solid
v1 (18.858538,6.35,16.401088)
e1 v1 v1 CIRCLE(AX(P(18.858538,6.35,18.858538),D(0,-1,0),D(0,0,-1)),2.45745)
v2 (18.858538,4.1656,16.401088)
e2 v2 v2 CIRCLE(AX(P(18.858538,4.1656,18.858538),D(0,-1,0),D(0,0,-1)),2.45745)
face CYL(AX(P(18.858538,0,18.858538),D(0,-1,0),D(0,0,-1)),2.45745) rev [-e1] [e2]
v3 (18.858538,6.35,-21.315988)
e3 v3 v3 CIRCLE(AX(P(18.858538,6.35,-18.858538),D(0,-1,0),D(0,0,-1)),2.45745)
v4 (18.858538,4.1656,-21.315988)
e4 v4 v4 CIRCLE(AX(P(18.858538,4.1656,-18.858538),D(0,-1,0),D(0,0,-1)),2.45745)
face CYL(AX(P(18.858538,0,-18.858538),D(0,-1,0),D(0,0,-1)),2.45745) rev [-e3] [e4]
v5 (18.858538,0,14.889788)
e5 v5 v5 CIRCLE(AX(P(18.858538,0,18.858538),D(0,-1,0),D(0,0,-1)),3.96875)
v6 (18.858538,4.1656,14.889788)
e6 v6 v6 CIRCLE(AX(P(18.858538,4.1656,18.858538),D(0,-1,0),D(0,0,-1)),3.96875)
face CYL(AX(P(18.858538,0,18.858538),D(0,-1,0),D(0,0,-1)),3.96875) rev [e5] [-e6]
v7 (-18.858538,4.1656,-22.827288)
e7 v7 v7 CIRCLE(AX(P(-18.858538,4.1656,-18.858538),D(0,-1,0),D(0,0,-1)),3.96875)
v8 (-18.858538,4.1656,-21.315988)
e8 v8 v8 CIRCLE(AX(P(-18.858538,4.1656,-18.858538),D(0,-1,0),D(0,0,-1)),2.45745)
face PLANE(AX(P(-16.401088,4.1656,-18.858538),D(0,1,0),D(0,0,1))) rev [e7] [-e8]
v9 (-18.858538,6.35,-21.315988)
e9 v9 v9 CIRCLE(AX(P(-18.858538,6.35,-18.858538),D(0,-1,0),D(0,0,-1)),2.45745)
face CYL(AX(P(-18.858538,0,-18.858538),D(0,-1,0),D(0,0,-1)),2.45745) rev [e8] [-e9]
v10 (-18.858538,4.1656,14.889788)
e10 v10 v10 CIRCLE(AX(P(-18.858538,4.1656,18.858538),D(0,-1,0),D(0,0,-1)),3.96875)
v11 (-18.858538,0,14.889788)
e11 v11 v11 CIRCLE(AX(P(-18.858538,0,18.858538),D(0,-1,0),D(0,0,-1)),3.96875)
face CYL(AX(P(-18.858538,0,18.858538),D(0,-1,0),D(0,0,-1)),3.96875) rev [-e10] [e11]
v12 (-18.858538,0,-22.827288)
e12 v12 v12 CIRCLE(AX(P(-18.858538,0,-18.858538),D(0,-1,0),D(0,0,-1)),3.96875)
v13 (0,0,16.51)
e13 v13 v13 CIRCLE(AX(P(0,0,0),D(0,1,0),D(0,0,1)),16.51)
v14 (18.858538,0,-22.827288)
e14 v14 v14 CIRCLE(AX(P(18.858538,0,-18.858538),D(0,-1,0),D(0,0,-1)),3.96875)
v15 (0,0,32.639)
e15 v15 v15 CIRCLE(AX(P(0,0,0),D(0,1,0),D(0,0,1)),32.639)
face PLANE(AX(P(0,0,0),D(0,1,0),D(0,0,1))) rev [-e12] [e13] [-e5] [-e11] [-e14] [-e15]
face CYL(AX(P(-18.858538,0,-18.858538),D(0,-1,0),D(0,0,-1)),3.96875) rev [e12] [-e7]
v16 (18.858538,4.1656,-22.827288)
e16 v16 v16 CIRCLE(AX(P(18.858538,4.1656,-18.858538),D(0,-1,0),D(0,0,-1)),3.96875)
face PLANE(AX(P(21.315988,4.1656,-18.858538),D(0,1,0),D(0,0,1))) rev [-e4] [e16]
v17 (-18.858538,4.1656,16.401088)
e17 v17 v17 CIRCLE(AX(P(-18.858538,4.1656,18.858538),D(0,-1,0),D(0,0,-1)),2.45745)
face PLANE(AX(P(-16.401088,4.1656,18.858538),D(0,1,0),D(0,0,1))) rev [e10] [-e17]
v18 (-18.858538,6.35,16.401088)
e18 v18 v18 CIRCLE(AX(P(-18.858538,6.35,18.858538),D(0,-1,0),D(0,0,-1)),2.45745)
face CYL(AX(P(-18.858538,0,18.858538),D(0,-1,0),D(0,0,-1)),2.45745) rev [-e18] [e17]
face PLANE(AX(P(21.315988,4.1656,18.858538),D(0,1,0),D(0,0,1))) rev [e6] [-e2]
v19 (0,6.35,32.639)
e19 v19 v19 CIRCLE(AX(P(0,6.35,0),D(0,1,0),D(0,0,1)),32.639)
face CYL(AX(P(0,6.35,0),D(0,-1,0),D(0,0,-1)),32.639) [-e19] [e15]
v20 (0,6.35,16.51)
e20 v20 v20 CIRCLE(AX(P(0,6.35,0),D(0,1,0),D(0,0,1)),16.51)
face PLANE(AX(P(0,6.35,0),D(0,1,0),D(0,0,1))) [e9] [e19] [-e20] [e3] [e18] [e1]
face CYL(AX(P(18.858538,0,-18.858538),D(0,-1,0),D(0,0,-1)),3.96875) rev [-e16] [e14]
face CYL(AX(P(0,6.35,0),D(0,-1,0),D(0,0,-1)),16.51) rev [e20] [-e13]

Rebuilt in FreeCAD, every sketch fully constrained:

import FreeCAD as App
import Part
import Sketcher
from FreeCAD import Vector
Q = App.Units.Quantity

doc = App.newDocument("Part")
params = doc.addObject("Spreadsheet::Sheet", "Params")
for row, (alias, value) in enumerate([
    ("sketch1_diameter", "1.3 in"),
    ("sketch1_diameter2", "2.57 in"),
    ("pad1_length", "0.25 in"),
    ("hole_diameter", "0.1935 in"),
    ("hole_cbore_diameter", "0.3125 in"),
    ("hole_cbore_depth", "0.164 in"),
], start=1):
    params.set(f"A{row}", alias)
    params.set(f"B{row}", "=" + value)
    params.setAlias(f"B{row}", alias)

body = doc.addObject("PartDesign::Body", "Body")

sketch1 = doc.addObject("Sketcher::SketchObject", "Sketch")
body.addObject(sketch1)
sketch1.AttachmentSupport = (doc.XZ_Plane, [""])
sketch1.MapMode = "FlatFace"
sketch1.addGeometry(Part.Circle(Vector(0, 0, 0), Vector(0, 0, 1), 32.639), False)
sketch1.addGeometry(Part.Circle(Vector(0, 0, 0), Vector(0, 0, 1), 16.51), False)
sketch1.addConstraint(Sketcher.Constraint("Coincident", 0, 3, -1, 1))
sketch1.addConstraint(Sketcher.Constraint("Coincident", 1, 3, -1, 1))
sketch1.addConstraint(Sketcher.Constraint("Diameter", 1, Q("1.3 in")))
sketch1.addConstraint(Sketcher.Constraint("Diameter", 0, Q("2.57 in")))
sketch1.setExpression("Constraints[2]", "Params.sketch1_diameter")
sketch1.setExpression("Constraints[3]", "Params.sketch1_diameter2")
pad1 = doc.addObject("PartDesign::Pad", "Pad")
body.addObject(pad1)
pad1.Profile = sketch1
pad1.setExpression("Length", "Params.pad1_length")
pad1.Reversed = True

sketch2 = doc.addObject("Sketcher::SketchObject", "Sketch001")
body.addObject(sketch2)
sketch2.AttachmentSupport = (doc.XZ_Plane, [""])
sketch2.MapMode = "FlatFace"
sketch2.addGeometry(Part.Circle(Vector(-18.858538, 18.858538, 0), Vector(0, 0, 1), 2.45745), False)
sketch2.addGeometry(Part.Circle(Vector(18.858538, 18.858538, 0), Vector(0, 0, 1), 2.45745), False)
sketch2.addGeometry(Part.Circle(Vector(18.858538, -18.858538, 0), Vector(0, 0, 1), 2.45745), False)
sketch2.addGeometry(Part.Circle(Vector(-18.858538, -18.858538, 0), Vector(0, 0, 1), 2.45745), False)
sketch2.addConstraint(Sketcher.Constraint("Equal", 0, 1))
sketch2.addConstraint(Sketcher.Constraint("Equal", 1, 2))
sketch2.addConstraint(Sketcher.Constraint("Equal", 2, 3))
sketch2.addConstraint(Sketcher.Constraint("Symmetric", 0, 3, 2, 3, -1, 1))
sketch2.addConstraint(Sketcher.Constraint("Symmetric", 1, 3, 3, 3, -1, 1))
sketch2.addConstraint(Sketcher.Constraint("Symmetric", 0, 3, 1, 3, -2))
sketch2.addConstraint(Sketcher.Constraint("Diameter", 0, Q("0.1935 in")))
sketch2.addConstraint(Sketcher.Constraint("DistanceX", 0, 3, -1, 1, Q("18.858538 mm")))
sketch2.addConstraint(Sketcher.Constraint("DistanceY", -1, 1, 0, 3, Q("18.858538 mm")))
doc.recompute()
hole = doc.addObject("PartDesign::Hole", "Hole")
body.addObject(hole)
hole.Profile = sketch2
hole.ThreadType = "None"
hole.setExpression("Diameter", "Params.hole_diameter")
hole.DepthType = "ThroughAll"
hole.HoleCutType = "Counterbore"
hole.setExpression("HoleCutDiameter", "Params.hole_cbore_diameter")
hole.setExpression("HoleCutDepth", "Params.hole_cbore_depth")

doc.recompute()
